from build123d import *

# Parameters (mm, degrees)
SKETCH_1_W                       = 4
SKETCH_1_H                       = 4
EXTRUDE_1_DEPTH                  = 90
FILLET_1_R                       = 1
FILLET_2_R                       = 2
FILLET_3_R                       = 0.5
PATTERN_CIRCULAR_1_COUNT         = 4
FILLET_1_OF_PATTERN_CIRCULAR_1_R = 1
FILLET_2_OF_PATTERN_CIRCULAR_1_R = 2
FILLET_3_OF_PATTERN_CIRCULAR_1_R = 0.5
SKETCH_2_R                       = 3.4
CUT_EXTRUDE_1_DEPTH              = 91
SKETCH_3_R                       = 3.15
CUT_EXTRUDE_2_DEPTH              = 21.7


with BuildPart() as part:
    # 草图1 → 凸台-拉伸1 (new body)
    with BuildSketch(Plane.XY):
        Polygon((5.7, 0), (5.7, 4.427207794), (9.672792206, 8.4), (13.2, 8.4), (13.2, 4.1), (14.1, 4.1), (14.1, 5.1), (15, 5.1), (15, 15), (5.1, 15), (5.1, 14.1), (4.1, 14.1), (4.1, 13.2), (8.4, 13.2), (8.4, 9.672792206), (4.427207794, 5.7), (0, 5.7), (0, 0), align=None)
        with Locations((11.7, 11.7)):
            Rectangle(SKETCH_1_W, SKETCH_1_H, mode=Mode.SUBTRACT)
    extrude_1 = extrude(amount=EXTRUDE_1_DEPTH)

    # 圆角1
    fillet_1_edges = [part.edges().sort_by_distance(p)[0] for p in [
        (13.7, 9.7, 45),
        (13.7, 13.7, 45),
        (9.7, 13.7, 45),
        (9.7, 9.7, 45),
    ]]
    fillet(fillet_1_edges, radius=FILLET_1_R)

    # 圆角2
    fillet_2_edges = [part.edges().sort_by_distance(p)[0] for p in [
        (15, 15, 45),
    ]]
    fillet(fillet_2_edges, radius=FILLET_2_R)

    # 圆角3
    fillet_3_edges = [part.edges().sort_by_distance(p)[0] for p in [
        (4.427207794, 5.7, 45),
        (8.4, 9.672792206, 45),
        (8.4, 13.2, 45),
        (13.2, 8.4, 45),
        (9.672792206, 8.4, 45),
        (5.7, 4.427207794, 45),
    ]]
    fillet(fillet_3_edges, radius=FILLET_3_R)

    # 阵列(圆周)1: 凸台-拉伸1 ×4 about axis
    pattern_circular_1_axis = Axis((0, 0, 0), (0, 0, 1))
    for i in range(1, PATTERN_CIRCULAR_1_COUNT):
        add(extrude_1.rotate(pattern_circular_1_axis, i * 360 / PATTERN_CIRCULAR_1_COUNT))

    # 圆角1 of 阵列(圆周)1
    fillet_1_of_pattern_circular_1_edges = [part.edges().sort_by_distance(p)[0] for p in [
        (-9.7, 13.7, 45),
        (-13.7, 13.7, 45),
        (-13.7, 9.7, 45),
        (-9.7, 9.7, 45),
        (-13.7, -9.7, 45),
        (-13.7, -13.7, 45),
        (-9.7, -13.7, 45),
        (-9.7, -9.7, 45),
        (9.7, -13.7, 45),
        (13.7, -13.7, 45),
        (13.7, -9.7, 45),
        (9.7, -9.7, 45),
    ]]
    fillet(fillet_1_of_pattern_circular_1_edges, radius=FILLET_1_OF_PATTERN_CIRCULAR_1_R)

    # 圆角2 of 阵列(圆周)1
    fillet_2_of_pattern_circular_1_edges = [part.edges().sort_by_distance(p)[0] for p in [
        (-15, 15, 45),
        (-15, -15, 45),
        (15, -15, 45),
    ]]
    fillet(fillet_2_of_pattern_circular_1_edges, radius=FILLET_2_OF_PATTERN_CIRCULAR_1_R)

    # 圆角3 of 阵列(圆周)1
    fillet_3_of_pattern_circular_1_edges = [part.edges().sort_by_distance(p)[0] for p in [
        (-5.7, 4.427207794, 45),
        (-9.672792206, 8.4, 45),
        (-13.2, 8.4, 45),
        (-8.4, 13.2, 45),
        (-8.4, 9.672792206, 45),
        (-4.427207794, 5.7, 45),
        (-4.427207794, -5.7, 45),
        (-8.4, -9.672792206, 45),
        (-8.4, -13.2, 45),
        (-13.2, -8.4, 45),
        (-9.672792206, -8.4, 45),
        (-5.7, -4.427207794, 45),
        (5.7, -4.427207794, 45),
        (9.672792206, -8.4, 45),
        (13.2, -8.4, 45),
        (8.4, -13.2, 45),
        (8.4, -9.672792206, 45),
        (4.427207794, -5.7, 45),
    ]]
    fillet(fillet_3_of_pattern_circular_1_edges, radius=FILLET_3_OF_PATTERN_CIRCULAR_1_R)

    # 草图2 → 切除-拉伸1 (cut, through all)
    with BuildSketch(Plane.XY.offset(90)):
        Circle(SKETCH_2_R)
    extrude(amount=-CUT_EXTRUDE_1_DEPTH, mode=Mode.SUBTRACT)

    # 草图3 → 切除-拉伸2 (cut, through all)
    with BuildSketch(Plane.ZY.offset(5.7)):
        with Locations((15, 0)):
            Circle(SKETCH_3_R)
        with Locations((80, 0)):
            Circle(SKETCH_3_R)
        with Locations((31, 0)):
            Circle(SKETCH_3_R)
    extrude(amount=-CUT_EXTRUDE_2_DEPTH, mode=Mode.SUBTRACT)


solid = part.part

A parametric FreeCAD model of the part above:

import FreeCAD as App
import Part
import Sketcher

V = App.Vector
Q = App.Units.Quantity


def edges_at(feature, points):
    """Names of the edges that pass closest to the given points."""
    edges = feature.Shape.Edges
    near = lambda p: min(range(len(edges)), key=lambda i: edges[i].distToShape(Part.Vertex(*p))[0])
    return sorted({f"Edge{near(p) + 1}" for p in points})


def add_polygon(sketch, points):
    """Adds a closed chain of lines whose ends are joined by coincident constraints."""
    first, n = sketch.GeometryCount, len(points)
    for a, b in zip(points, points[1:] + points[:1]):
        sketch.addGeometry(Part.LineSegment(App.Vector(*a, 0), App.Vector(*b, 0)), False)
    for i in range(n):
        sketch.addConstraint(Sketcher.Constraint("Coincident", first + i, 2, first + (i + 1) % n, 1))

doc = App.newDocument("Part")
body = doc.addObject("PartDesign::Body", "Body")

# Sketch on XY plane
sketch1 = doc.addObject("Sketcher::SketchObject", "Sketch")
body.addObject(sketch1)
sketch1.AttachmentSupport = (doc.XY_Plane, [""])
sketch1.MapMode = "FlatFace"
add_polygon(sketch1, [(5.7, 0), (5.7, 4.427208), (9.672792, 8.4), (13.2, 8.4), (13.2, 4.1), (14.1, 4.1), (14.1, 5.1), (15, 5.1), (15, 15), (5.1, 15), (5.1, 14.1), (4.1, 14.1), (4.1, 13.2), (8.4, 13.2), (8.4, 9.672792), (4.427208, 5.7), (0, 5.7), (0, 0)])  # lines 0-17
add_polygon(sketch1, [(13.7, 9.7), (9.7, 9.7), (9.7, 13.7), (13.7, 13.7)])  # lines 18-21
sketch1.addConstraint(Sketcher.Constraint("Vertical", 0))
sketch1.addConstraint(Sketcher.Constraint("Horizontal", 2))
sketch1.addConstraint(Sketcher.Constraint("Vertical", 3))
sketch1.addConstraint(Sketcher.Constraint("Horizontal", 4))
sketch1.addConstraint(Sketcher.Constraint("Vertical", 5))
sketch1.addConstraint(Sketcher.Constraint("Horizontal", 6))
sketch1.addConstraint(Sketcher.Constraint("Vertical", 7))
sketch1.addConstraint(Sketcher.Constraint("Horizontal", 8))
sketch1.addConstraint(Sketcher.Constraint("Vertical", 9))
sketch1.addConstraint(Sketcher.Constraint("Horizontal", 10))
sketch1.addConstraint(Sketcher.Constraint("Vertical", 11))
sketch1.addConstraint(Sketcher.Constraint("Horizontal", 12))
sketch1.addConstraint(Sketcher.Constraint("Vertical", 13))
sketch1.addConstraint(Sketcher.Constraint("Horizontal", 15))
sketch1.addConstraint(Sketcher.Constraint("Vertical", 16))
sketch1.addConstraint(Sketcher.Constraint("Horizontal", 17))
sketch1.addConstraint(Sketcher.Constraint("Horizontal", 18))
sketch1.addConstraint(Sketcher.Constraint("Vertical", 19))
sketch1.addConstraint(Sketcher.Constraint("Horizontal", 20))
sketch1.addConstraint(Sketcher.Constraint("Vertical", 21))
sketch1.addConstraint(Sketcher.Constraint("Coincident", 16, 2, -1, 1))
sketch1.addConstraint(Sketcher.Constraint("Parallel", 1, 14))
sketch1.addConstraint(Sketcher.Constraint("Equal", 4, 6))
sketch1.addConstraint(Sketcher.Constraint("Equal", 15, 0))
sketch1.addConstraint(Sketcher.Constraint("Equal", 12, 3))
sketch1.addConstraint(Sketcher.Constraint("Equal", 10, 5))
sketch1.addConstraint(Sketcher.Constraint("Equal", 8, 7))
sketch1.addConstraint(Sketcher.Constraint("Equal", 6, 9))
sketch1.addConstraint(Sketcher.Constraint("Equal", 9, 11))
sketch1.addConstraint(Sketcher.Constraint("Equal", 2, 13))
sketch1.addConstraint(Sketcher.Constraint("Equal", 17, 16))
sketch1.addConstraint(Sketcher.Constraint("Equal", 20, 19))
sketch1.addConstraint(Sketcher.Constraint("DistanceX", 10, 2, 10, 1, 1.0))
sketch1.addConstraint(Sketcher.Constraint("DistanceX", 18, 2, 18, 1, 4.0))
sketch1.addConstraint(Sketcher.Constraint("Angle", 1, Q("45 deg")))
sketch1.addConstraint(Sketcher.Constraint("DistanceX", 4, 1, 4, 2, 0.9))
sketch1.addConstraint(Sketcher.Constraint("DistanceX", 8, 2, 8, 1, 9.9))
sketch1.addConstraint(Sketcher.Constraint("DistanceX", 12, 1, 12, 2, 4.3))
sketch1.addConstraint(Sketcher.Constraint("DistanceX", 17, 1, 17, 2, 5.7))
sketch1.addConstraint(Sketcher.Constraint("DistanceX", -1, 1, 6, 2, 15.0))
sketch1.addConstraint(Sketcher.Constraint("DistanceX", -1, 1, 18, 2, 9.7))
sketch1.addConstraint(Sketcher.Constraint("DistanceY", -1, 1, 18, 2, 9.7))
sketch1.addConstraint(Sketcher.Constraint("DistanceX", 2, 1, 2, 2, 3.527208))
pad1 = doc.addObject("PartDesign::Pad", "Pad")
body.addObject(pad1)
pad1.Profile = sketch1
pad1.Length = 90
doc.recompute()

fillet = doc.addObject("PartDesign::Fillet", "Fillet")
body.addObject(fillet)
fillet.Base = (pad1, edges_at(pad1, [
    (13.7, 9.7, 45),
    (13.7, 13.7, 45),
    (9.7, 13.7, 45),
    (9.7, 9.7, 45),
]))
fillet.Radius = 1
doc.recompute()

fillet2 = doc.addObject("PartDesign::Fillet", "Fillet001")
body.addObject(fillet2)
fillet2.Base = (fillet, edges_at(fillet, [(15, 15, 45)]))
fillet2.Radius = 2
doc.recompute()

fillet3 = doc.addObject("PartDesign::Fillet", "Fillet002")
body.addObject(fillet3)
fillet3.Base = (fillet2, edges_at(fillet2, [
    (4.427, 5.7, 45),
    (8.4, 9.673, 45),
    (8.4, 13.2, 45),
    (13.2, 8.4, 45),
    (9.673, 8.4, 45),
    (5.7, 4.427, 45),
]))
fillet3.Radius = 0.5
doc.recompute()

polarpattern = doc.addObject("PartDesign::PolarPattern", "PolarPattern")
body.addObject(polarpattern)
polarpattern.Originals = [pad1]
polarpattern.Axis = (doc.Z_Axis, [""])
polarpattern.Angle = 360
polarpattern.Occurrences = 4
body.Tip = polarpattern
doc.recompute()

fillet4 = doc.addObject("PartDesign::Fillet", "Fillet003")
body.addObject(fillet4)
fillet4.Base = (polarpattern, edges_at(polarpattern, [
    (-9.7, 13.7, 45),
    (-13.7, 13.7, 45),
    (-13.7, 9.7, 45),
    (-9.7, 9.7, 45),
    (-13.7, -9.7, 45),
    (-13.7, -13.7, 45),
    (-9.7, -13.7, 45),
    (-9.7, -9.7, 45),
    (9.7, -13.7, 45),
    (13.7, -13.7, 45),
    (13.7, -9.7, 45),
    (9.7, -9.7, 45),
]))
fillet4.Radius = 1
doc.recompute()

fillet5 = doc.addObject("PartDesign::Fillet", "Fillet004")
body.addObject(fillet5)
fillet5.Base = (fillet4, edges_at(fillet4, [(-15, 15, 45), (-15, -15, 45), (15, -15, 45)]))
fillet5.Radius = 2
doc.recompute()

fillet6 = doc.addObject("PartDesign::Fillet", "Fillet005")
body.addObject(fillet6)
fillet6.Base = (fillet5, edges_at(fillet5, [
    (-5.7, 4.427, 45),
    (-9.673, 8.4, 45),
    (-13.2, 8.4, 45),
    (-8.4, 13.2, 45),
    (-8.4, 9.673, 45),
    (-4.427, 5.7, 45),
    (-4.427, -5.7, 45),
    (-8.4, -9.673, 45),
    (-8.4, -13.2, 45),
    (-13.2, -8.4, 45),
    (-9.673, -8.4, 45),
    (-5.7, -4.427, 45),
    (5.7, -4.427, 45),
    (9.673, -8.4, 45),
    (13.2, -8.4, 45),
    (8.4, -13.2, 45),
    (8.4, -9.673, 45),
    (4.427, -5.7, 45),
]))
fillet6.Radius = 0.5

# Sketch on XY plane
sketch2 = doc.addObject("Sketcher::SketchObject", "Sketch001")
body.addObject(sketch2)
sketch2.AttachmentSupport = (doc.XY_Plane, [""])
sketch2.MapMode = "FlatFace"
sketch2.AttachmentOffset = App.Placement(V(0, 0, 90), App.Rotation())
sketch2.addGeometry(Part.Circle(V(0, 0, 0), V(0, 0, 1), 3.4), False)
sketch2.addConstraint(Sketcher.Constraint("Coincident", 0, 3, -1, 1))
sketch2.addConstraint(Sketcher.Constraint("Diameter", 0, 6.8))
pocket1 = doc.addObject("PartDesign::Pocket", "Pocket")
body.addObject(pocket1)
pocket1.Profile = sketch2
pocket1.Type = "ThroughAll"

# Sketch on YZ plane
sketch3 = doc.addObject("Sketcher::SketchObject", "Sketch002")
body.addObject(sketch3)
sketch3.AttachmentSupport = (doc.YZ_Plane, [""])
sketch3.MapMode = "FlatFace"
sketch3.AttachmentOffset = App.Placement(V(0, 0, -5.7), App.Rotation())
sketch3.addGeometry(Part.Circle(V(0, 15, 0), V(0, 0, 1), 3.15), False)
sketch3.addGeometry(Part.Circle(V(0, 80, 0), V(0, 0, 1), 3.15), False)
sketch3.addGeometry(Part.Circle(V(0, 31, 0), V(0, 0, 1), 3.15), False)
sketch3.addConstraint(Sketcher.Constraint("Equal", 0, 1))
sketch3.addConstraint(Sketcher.Constraint("Equal", 1, 2))
sketch3.addConstraint(Sketcher.Constraint("PointOnObject", 0, 3, -2))
sketch3.addConstraint(Sketcher.Constraint("PointOnObject", 1, 3, -2))
sketch3.addConstraint(Sketcher.Constraint("PointOnObject", 2, 3, -2))
sketch3.addConstraint(Sketcher.Constraint("Diameter", 0, 6.3))
sketch3.addConstraint(Sketcher.Constraint("DistanceY", -1, 1, 0, 3, 15.0))
sketch3.addConstraint(Sketcher.Constraint("DistanceY", -1, 1, 1, 3, 80.0))
sketch3.addConstraint(Sketcher.Constraint("DistanceY", -1, 1, 2, 3, 31.0))
pocket2 = doc.addObject("PartDesign::Pocket", "Pocket001")
body.addObject(pocket2)
pocket2.Profile = sketch3
pocket2.Type = "ThroughAll"
pocket2.Reversed = True

doc.recompute()
